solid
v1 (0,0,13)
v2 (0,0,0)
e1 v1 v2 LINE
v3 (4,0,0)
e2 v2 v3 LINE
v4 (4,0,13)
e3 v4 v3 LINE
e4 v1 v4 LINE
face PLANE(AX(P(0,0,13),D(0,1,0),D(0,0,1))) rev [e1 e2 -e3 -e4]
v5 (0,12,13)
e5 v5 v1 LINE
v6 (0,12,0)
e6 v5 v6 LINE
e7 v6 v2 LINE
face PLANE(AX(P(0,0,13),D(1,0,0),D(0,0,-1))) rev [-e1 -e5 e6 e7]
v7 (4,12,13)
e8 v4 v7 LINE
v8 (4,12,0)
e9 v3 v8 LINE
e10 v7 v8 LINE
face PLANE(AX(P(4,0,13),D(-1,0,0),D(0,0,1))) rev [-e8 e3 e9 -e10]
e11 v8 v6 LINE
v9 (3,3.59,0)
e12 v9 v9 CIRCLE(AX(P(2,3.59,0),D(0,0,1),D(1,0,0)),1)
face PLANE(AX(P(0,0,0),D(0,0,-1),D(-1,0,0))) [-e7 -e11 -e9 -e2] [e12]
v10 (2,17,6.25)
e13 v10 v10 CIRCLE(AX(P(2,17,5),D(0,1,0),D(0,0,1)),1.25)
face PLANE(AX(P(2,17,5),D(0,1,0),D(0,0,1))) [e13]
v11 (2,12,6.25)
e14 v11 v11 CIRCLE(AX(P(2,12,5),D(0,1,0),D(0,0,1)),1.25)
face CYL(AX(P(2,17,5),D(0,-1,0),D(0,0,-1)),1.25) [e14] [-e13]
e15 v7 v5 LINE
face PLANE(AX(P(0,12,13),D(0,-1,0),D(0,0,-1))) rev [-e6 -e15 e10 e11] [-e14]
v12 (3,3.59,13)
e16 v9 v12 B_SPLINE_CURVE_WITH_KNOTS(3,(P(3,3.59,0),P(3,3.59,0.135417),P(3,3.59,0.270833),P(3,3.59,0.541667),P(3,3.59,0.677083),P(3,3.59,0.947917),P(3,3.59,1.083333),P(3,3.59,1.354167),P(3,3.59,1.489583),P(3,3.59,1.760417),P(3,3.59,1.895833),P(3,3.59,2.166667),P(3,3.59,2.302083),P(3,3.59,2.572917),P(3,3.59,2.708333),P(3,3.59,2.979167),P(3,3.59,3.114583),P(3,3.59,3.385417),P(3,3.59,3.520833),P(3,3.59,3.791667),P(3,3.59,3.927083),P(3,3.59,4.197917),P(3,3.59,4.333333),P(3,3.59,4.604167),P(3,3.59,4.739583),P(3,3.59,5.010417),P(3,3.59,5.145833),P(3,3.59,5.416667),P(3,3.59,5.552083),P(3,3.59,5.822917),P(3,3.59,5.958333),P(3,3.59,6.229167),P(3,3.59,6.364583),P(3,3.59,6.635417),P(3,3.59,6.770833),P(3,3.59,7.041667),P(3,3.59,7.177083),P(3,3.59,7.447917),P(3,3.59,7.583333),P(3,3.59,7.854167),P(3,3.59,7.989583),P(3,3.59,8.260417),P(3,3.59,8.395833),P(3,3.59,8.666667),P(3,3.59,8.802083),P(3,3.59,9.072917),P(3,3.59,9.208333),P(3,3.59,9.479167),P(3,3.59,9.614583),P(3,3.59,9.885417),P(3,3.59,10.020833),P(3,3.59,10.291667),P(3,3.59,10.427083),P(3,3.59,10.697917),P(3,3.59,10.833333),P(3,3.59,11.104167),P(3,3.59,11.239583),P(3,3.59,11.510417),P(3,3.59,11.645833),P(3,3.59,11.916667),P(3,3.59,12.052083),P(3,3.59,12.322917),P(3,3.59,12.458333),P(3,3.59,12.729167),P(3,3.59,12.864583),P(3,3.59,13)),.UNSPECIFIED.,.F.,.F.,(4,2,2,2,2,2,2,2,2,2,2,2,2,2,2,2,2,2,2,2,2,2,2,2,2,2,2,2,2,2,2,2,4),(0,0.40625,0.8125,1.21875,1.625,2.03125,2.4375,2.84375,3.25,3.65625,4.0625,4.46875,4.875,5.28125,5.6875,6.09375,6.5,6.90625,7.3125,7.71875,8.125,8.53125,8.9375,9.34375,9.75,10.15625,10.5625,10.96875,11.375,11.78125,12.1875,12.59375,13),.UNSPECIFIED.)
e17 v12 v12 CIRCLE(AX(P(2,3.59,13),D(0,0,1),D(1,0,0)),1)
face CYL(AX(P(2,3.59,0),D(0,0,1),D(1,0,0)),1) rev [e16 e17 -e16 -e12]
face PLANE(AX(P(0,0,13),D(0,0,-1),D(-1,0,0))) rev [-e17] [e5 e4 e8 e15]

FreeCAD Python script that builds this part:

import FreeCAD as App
import Part
import Sketcher
from FreeCAD import Vector
Q = App.Units.Quantity


def add_polygon(sketch, points):
    """Adds a closed chain of lines whose ends are joined by coincident constraints."""
    first, n = sketch.GeometryCount, len(points)
    for a, b in zip(points, points[1:] + points[:1]):
        sketch.addGeometry(Part.LineSegment(App.Vector(*a, 0), App.Vector(*b, 0)), False)
    for i in range(n):
        sketch.addConstraint(Sketcher.Constraint("Coincident", first + i, 2, first + (i + 1) % n, 1))

doc = App.newDocument("Part")
body = doc.addObject("PartDesign::Body", "Body")

sketch1 = body.newObject("Sketcher::SketchObject", "Sketch")
sketch1.AttachmentSupport = (doc.getObject("XY_Plane"), [""])
sketch1.MapMode = "FlatFace"
add_polygon(sketch1, [(0, 12), (0, 0), (4, 0), (4, 12)])
sketch1.addConstraint(Sketcher.Constraint("Vertical", 0))
sketch1.addConstraint(Sketcher.Constraint("Horizontal", 1))
sketch1.addConstraint(Sketcher.Constraint("Vertical", 2))
sketch1.addConstraint(Sketcher.Constraint("Horizontal", 3))
sketch1.addConstraint(Sketcher.Constraint("Coincident", 0, 2, -1, 1))
sketch1.addConstraint(Sketcher.Constraint("DistanceX", 1, 1, 1, 2, Q("4 mm")))
sketch1.addConstraint(Sketcher.Constraint("DistanceY", 0, 2, 0, 1, Q("12 mm")))
pad1 = body.newObject("PartDesign::Pad", "Pad")
pad1.Profile = sketch1
pad1.Length = 13

sketch2 = body.newObject("Sketcher::SketchObject", "Sketch001")
sketch2.AttachmentSupport = (doc.getObject("XZ_Plane"), [""])
sketch2.MapMode = "FlatFace"
sketch2.AttachmentOffset = App.Placement(Vector(0, 0, -12), App.Rotation())
sketch2.addGeometry(Part.Circle(Vector(2, 5, 0), Vector(0, 0, 1), 1.2), False)
sketch2.addConstraint(Sketcher.Constraint("Diameter", 0, Q("2.5 mm")))
sketch2.addConstraint(Sketcher.Constraint("DistanceX", -1, 1, 0, 3, Q("2 mm")))
sketch2.addConstraint(Sketcher.Constraint("DistanceY", -1, 1, 0, 3, Q("5 mm")))
pad2 = body.newObject("PartDesign::Pad", "Pad001")
pad2.Profile = sketch2
pad2.Length = 5
pad2.Reversed = True

sketch3 = body.newObject("Sketcher::SketchObject", "Sketch002")
sketch3.AttachmentSupport = (doc.getObject("XY_Plane"), [""])
sketch3.MapMode = "FlatFace"
sketch3.AttachmentOffset = App.Placement(Vector(0, 0, 13), App.Rotation())
sketch3.addGeometry(Part.Circle(Vector(2, 3.6, 0), Vector(0, 0, 1), 1), False)
sketch3.addConstraint(Sketcher.Constraint("Diameter", 0, Q("2 mm")))
sketch3.addConstraint(Sketcher.Constraint("DistanceX", -1, 1, 0, 3, Q("2 mm")))
sketch3.addConstraint(Sketcher.Constraint("DistanceY", -1, 1, 0, 3, Q("3.59 mm")))
pocket1 = body.newObject("PartDesign::Pocket", "Pocket")
pocket1.Profile = sketch3
pocket1.Type = "ThroughAll"

doc.recompute()
